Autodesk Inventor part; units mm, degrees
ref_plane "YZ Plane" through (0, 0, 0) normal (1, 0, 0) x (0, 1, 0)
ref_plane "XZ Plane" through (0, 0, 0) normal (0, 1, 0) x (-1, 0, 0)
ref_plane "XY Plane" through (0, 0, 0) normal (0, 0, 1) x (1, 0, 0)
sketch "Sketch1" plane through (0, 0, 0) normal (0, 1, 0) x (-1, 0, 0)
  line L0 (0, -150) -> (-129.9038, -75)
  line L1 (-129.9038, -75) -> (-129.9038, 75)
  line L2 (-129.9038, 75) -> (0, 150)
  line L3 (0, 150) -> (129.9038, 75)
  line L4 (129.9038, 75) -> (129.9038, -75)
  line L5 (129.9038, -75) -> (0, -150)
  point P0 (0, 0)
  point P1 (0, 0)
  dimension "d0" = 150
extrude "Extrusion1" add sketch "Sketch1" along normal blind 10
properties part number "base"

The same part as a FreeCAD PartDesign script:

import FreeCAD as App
import Part
import Sketcher

V = App.Vector
Q = App.Units.Quantity


def add_polygon(sketch, points):
    """Adds a closed chain of lines whose ends are joined by coincident constraints."""
    first, n = sketch.GeometryCount, len(points)
    for a, b in zip(points, points[1:] + points[:1]):
        sketch.addGeometry(Part.LineSegment(App.Vector(*a, 0), App.Vector(*b, 0)), False)
    for i in range(n):
        sketch.addConstraint(Sketcher.Constraint("Coincident", first + i, 2, first + (i + 1) % n, 1))

doc = App.newDocument("Part")
body = doc.addObject("PartDesign::Body", "Body")

# Sketch on XZ plane
sketch1 = body.newObject("Sketcher::SketchObject", "Sketch")
sketch1.AttachmentSupport = (doc.getObject("XZ_Plane"), [""])
sketch1.MapMode = "FlatFace"
add_polygon(sketch1, [(129.9038, -75), (0, -150), (-129.9038, -75), (-129.9038, 75), (0, 150), (129.9038, 75)])  # lines 0-5
sketch1.addConstraint([
    Sketcher.Constraint("Vertical", 2),
    Sketcher.Constraint("Vertical", 5),
    Sketcher.Constraint("Symmetric", 0, 2, 3, 2, -1, 1),
    Sketcher.Constraint("Symmetric", 1, 2, 4, 2, -1, 1),
    Sketcher.Constraint("PointOnObject", 0, 2, -2),
    Sketcher.Constraint("Parallel", 0, 3),
    Sketcher.Constraint("Horizontal", 2, 2, 4, 2),
    Sketcher.Constraint("DistanceY", 2, 1, 2, 2, 150.0),
    Sketcher.Constraint("Angle", 0, Q("-150 deg")),
    Sketcher.Constraint("Distance", 0, 150.0),
])
pad1 = body.newObject("PartDesign::Pad", "Pad")
pad1.Profile = sketch1
pad1.Length = 10
pad1.Reversed = True

doc.recompute()
